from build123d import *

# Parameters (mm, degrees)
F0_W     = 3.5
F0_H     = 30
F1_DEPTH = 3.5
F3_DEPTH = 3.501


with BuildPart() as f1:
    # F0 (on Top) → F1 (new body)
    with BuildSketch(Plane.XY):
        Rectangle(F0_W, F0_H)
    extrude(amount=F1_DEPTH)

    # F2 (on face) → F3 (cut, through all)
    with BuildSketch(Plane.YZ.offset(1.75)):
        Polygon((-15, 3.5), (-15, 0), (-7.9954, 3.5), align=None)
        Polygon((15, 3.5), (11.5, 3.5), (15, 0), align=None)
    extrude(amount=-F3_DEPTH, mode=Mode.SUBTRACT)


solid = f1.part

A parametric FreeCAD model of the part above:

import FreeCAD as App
import Part
import Sketcher
from FreeCAD import Vector
Q = App.Units.Quantity

doc = App.newDocument("Part")
body = doc.addObject("PartDesign::Body", "Body")

sketch1 = body.newObject("Sketcher::SketchObject", "Sketch")
sketch1.AttachmentSupport = (doc.getObject("XY_Plane"), [""])
sketch1.MapMode = "FlatFace"
sketch1.addGeometry([
    Part.LineSegment(Vector(-1.8, 15, 0), Vector(-1.8, -15, 0)),
    Part.LineSegment(Vector(-1.8, -15, 0), Vector(1.8, -15, 0)),
    Part.LineSegment(Vector(1.8, -15, 0), Vector(1.8, 15, 0)),
    Part.LineSegment(Vector(1.8, 15, 0), Vector(-1.8, 15, 0)),
], False)
sketch1.addConstraint([
    Sketcher.Constraint("Coincident", 0, 2, 1, 1),
    Sketcher.Constraint("Coincident", 1, 2, 2, 1),
    Sketcher.Constraint("Coincident", 2, 2, 3, 1),
    Sketcher.Constraint("Coincident", 3, 2, 0, 1),
    Sketcher.Constraint("Vertical", 0),
    Sketcher.Constraint("Horizontal", 1),
    Sketcher.Constraint("Vertical", 2),
    Sketcher.Constraint("Horizontal", 3),
    Sketcher.Constraint("Symmetric", 0, 2, 2, 2, -1, 1),
    Sketcher.Constraint("DistanceY", 0, 2, 0, 1, Q("30 mm")),
    Sketcher.Constraint("DistanceX", 1, 1, 1, 2, Q("3.5 mm")),
])
pad1 = body.newObject("PartDesign::Pad", "Pad")
pad1.Profile = sketch1
pad1.Length = 3.5

sketch2 = body.newObject("Sketcher::SketchObject", "Sketch001")
sketch2.AttachmentSupport = (doc.getObject("YZ_Plane"), [""])
sketch2.MapMode = "FlatFace"
sketch2.AttachmentOffset = App.Placement(Vector(0, 0, 1.75), App.Rotation())
sketch2.addGeometry([
    Part.LineSegment(Vector(-15, 3.5, 0), Vector(-15, 0, 0)),
    Part.LineSegment(Vector(-15, 0, 0), Vector(-8, 3.5, 0)),
    Part.LineSegment(Vector(-8, 3.5, 0), Vector(-15, 3.5, 0)),
    Part.LineSegment(Vector(15, 3.5, 0), Vector(11.5, 3.5, 0)),
    Part.LineSegment(Vector(11.5, 3.5, 0), Vector(15, 0, 0)),
    Part.LineSegment(Vector(15, 0, 0), Vector(15, 3.5, 0)),
], False)
sketch2.addConstraint([
    Sketcher.Constraint("Coincident", 0, 2, 1, 1),
    Sketcher.Constraint("Coincident", 1, 2, 2, 1),
    Sketcher.Constraint("Coincident", 2, 2, 0, 1),
    Sketcher.Constraint("Coincident", 3, 2, 4, 1),
    Sketcher.Constraint("Coincident", 4, 2, 5, 1),
    Sketcher.Constraint("Coincident", 5, 2, 3, 1),
    Sketcher.Constraint("Vertical", 0),
    Sketcher.Constraint("Horizontal", 2),
    Sketcher.Constraint("Horizontal", 3),
    Sketcher.Constraint("Vertical", 5),
    Sketcher.Constraint("Symmetric", 0, 2, 4, 2, -1, 1),
    Sketcher.Constraint("PointOnObject", 0, 2, -1),
    Sketcher.Constraint("Horizontal", 2, 2, 3, 2),
    Sketcher.Constraint("Equal", 3, 0),
    Sketcher.Constraint("DistanceX", 3, 2, 3, 1, Q("3.5 mm")),
    Sketcher.Constraint("DistanceX", 0, 2, -1, 1, Q("15 mm")),
    Sketcher.Constraint("Angle", 1, Q("26.549998 deg")),
])
pocket1 = body.newObject("PartDesign::Pocket", "Pocket")
pocket1.Profile = sketch2
pocket1.Type = "ThroughAll"

doc.recompute()
